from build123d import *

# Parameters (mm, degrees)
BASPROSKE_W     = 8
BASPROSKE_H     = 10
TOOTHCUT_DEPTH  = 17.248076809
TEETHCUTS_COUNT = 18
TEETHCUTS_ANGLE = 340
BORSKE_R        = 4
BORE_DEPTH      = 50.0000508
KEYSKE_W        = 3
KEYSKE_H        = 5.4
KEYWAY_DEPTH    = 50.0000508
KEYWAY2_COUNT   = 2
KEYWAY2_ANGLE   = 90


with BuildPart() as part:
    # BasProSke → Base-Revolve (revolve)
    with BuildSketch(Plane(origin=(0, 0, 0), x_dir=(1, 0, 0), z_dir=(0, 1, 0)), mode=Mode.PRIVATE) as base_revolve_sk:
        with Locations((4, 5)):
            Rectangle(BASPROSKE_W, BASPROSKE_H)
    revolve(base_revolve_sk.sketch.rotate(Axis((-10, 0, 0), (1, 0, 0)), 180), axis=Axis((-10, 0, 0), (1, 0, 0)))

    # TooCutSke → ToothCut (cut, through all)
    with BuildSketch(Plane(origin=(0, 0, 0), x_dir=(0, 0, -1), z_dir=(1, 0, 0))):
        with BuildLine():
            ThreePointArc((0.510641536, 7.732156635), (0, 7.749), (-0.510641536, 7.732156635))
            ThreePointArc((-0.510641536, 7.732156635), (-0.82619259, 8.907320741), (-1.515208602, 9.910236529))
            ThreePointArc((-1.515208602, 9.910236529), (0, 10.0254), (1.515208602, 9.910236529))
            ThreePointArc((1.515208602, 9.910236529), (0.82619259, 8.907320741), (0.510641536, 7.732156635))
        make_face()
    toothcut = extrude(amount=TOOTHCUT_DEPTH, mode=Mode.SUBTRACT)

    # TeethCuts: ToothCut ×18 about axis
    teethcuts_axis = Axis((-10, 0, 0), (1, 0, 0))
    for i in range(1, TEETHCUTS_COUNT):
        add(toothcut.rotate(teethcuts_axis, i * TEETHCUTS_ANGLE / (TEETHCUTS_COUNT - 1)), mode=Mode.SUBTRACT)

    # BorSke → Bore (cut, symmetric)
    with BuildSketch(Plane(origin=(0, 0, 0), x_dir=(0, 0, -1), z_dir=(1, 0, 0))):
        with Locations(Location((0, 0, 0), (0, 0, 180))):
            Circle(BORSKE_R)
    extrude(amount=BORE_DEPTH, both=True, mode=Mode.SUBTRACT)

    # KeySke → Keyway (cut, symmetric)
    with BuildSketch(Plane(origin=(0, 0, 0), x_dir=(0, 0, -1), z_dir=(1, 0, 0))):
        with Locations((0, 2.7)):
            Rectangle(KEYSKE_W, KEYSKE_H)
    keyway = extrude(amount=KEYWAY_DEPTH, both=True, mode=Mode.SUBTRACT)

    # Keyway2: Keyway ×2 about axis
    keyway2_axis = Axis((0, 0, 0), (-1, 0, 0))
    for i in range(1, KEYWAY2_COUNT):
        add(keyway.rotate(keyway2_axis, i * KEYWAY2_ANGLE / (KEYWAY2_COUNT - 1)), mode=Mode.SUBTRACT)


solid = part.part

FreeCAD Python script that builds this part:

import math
import FreeCAD as App
import Part
import Sketcher
from FreeCAD import Vector

doc = App.newDocument("Part")
body = doc.addObject("PartDesign::Body", "Body")

# Sketch on XZ plane
sketch1 = doc.addObject("Sketcher::SketchObject", "Sketch")
body.addObject(sketch1)
sketch1.AttachmentSupport = (doc.XZ_Plane, [""])
sketch1.MapMode = "FlatFace"
sketch1.addGeometry([
    Part.LineSegment(Vector(0, -10, 0), Vector(0, 0, 0)),
    Part.LineSegment(Vector(0, 0, 0), Vector(8, 0, 0)),
    Part.LineSegment(Vector(8, 0, 0), Vector(8, -10, 0)),
    Part.LineSegment(Vector(8, -10, 0), Vector(0, -10, 0)),
], False)
sketch1.addConstraint([
    Sketcher.Constraint("Coincident", 0, 2, 1, 1),
    Sketcher.Constraint("Coincident", 1, 2, 2, 1),
    Sketcher.Constraint("Coincident", 2, 2, 3, 1),
    Sketcher.Constraint("Coincident", 3, 2, 0, 1),
    Sketcher.Constraint("Vertical", 0),
    Sketcher.Constraint("Horizontal", 1),
    Sketcher.Constraint("Vertical", 2),
    Sketcher.Constraint("Horizontal", 3),
    Sketcher.Constraint("Coincident", 0, 2, -1, 1),
    Sketcher.Constraint("DistanceX", 1, 1, 1, 2, 8.0),
    Sketcher.Constraint("DistanceY", 0, 1, 0, 2, 10.0),
])
revolution = doc.addObject("PartDesign::Revolution", "Revolution")
body.addObject(revolution)
revolution.Profile = sketch1
revolution.ReferenceAxis = (sketch1, ["H_Axis"])
revolution.Angle = 360

# Sketch on YZ plane
sketch2 = doc.addObject("Sketcher::SketchObject", "Sketch001")
body.addObject(sketch2)
sketch2.AttachmentSupport = (doc.YZ_Plane, [""])
sketch2.MapMode = "FlatFace"
sketch2.addGeometry([
    Part.ArcOfCircle(Part.Circle(Vector(0, 0, 0), Vector(0, 0, 1), 7.7), math.radians(-3.78), math.radians(3.78)),
    Part.ArcOfCircle(Part.Circle(Vector(7.4, -4.1, 0), Vector(0, 0, 1), 3.6), math.radians(46), math.radians(85)),
    Part.ArcOfCircle(Part.Circle(Vector(0, 0, 0), Vector(0, 0, 1), 10), math.radians(-8.69), math.radians(8.69)),
    Part.ArcOfCircle(Part.Circle(Vector(7.4, 4.1, 0), Vector(0, 0, 1), 3.6), math.radians(-85), math.radians(-46)),
], False)
sketch2.addConstraint([
    Sketcher.Constraint("Coincident", 0, 1, 1, 2),
    Sketcher.Constraint("Coincident", 1, 1, 2, 1),
    Sketcher.Constraint("Coincident", 2, 2, 3, 2),
    Sketcher.Constraint("Coincident", 3, 1, 0, 2),
    Sketcher.Constraint("Coincident", 0, 3, -1, 1),
    Sketcher.Constraint("Coincident", 2, 3, -1, 1),
    Sketcher.Constraint("Equal", 1, 3),
    Sketcher.Constraint("Symmetric", 1, 3, 3, 3, -1),
    Sketcher.Constraint("Radius", 1, 3.6),
    Sketcher.Constraint("Radius", 0, 7.749),
    Sketcher.Constraint("Radius", 2, 10.0254),
    Sketcher.Constraint("DistanceX", -1, 1, 1, 3, 7.399578),
    Sketcher.Constraint("DistanceY", 0, 1, -1, 1, 0.510642),
])
pocket1 = doc.addObject("PartDesign::Pocket", "Pocket")
body.addObject(pocket1)
pocket1.Profile = sketch2
pocket1.Type = "ThroughAll"
pocket1.Reversed = True
doc.recompute()

polarpattern = doc.addObject("PartDesign::PolarPattern", "PolarPattern")
body.addObject(polarpattern)
polarpattern.Originals = [pocket1]
polarpattern.Axis = (doc.X_Axis, [""])
polarpattern.Angle = 360
polarpattern.Occurrences = 18
body.Tip = polarpattern

# Sketch on YZ plane
sketch3 = doc.addObject("Sketcher::SketchObject", "Sketch002")
body.addObject(sketch3)
sketch3.AttachmentSupport = (doc.YZ_Plane, [""])
sketch3.MapMode = "FlatFace"
sketch3.addGeometry(Part.Circle(Vector(0, 0, 0), Vector(0, 0, 1), 4), False)
sketch3.addConstraint([
    Sketcher.Constraint("Coincident", 0, 3, -1, 1),
    Sketcher.Constraint("Diameter", 0, 8.0),
])
pocket2 = doc.addObject("PartDesign::Pocket", "Pocket001")
body.addObject(pocket2)
pocket2.Profile = sketch3
pocket2.Length = 100.000102
pocket2.Midplane = True

# Sketch on YZ plane
sketch4 = doc.addObject("Sketcher::SketchObject", "Sketch003")
body.addObject(sketch4)
sketch4.AttachmentSupport = (doc.YZ_Plane, [""])
sketch4.MapMode = "FlatFace"
sketch4.addGeometry([
    Part.LineSegment(Vector(5.4, 1.5, 0), Vector(0, 1.5, 0)),
    Part.LineSegment(Vector(0, 1.5, 0), Vector(0, -1.5, 0)),
    Part.LineSegment(Vector(0, -1.5, 0), Vector(5.4, -1.5, 0)),
    Part.LineSegment(Vector(5.4, -1.5, 0), Vector(5.4, 1.5, 0)),
], False)
sketch4.addConstraint([
    Sketcher.Constraint("Coincident", 0, 2, 1, 1),
    Sketcher.Constraint("Coincident", 1, 2, 2, 1),
    Sketcher.Constraint("Coincident", 2, 2, 3, 1),
    Sketcher.Constraint("Coincident", 3, 2, 0, 1),
    Sketcher.Constraint("Horizontal", 0),
    Sketcher.Constraint("Vertical", 1),
    Sketcher.Constraint("Horizontal", 2),
    Sketcher.Constraint("Vertical", 3),
    Sketcher.Constraint("Symmetric", 0, 2, 1, 2, -1, 1),
    Sketcher.Constraint("DistanceY", 1, 2, 1, 1, 3.0),
    Sketcher.Constraint("DistanceX", 0, 2, 0, 1, 5.4),
])
pocket3 = doc.addObject("PartDesign::Pocket", "Pocket002")
body.addObject(pocket3)
pocket3.Profile = sketch4
pocket3.Length = 100.000102
pocket3.Midplane = True
doc.recompute()

polarpattern2 = doc.addObject("PartDesign::PolarPattern", "PolarPattern001")
body.addObject(polarpattern2)
polarpattern2.Originals = [pocket3]
polarpattern2.Axis = (doc.X_Axis, [""])
polarpattern2.Angle = 90
polarpattern2.Occurrences = 2
polarpattern2.Reversed = True
body.Tip = polarpattern2

doc.recompute()
